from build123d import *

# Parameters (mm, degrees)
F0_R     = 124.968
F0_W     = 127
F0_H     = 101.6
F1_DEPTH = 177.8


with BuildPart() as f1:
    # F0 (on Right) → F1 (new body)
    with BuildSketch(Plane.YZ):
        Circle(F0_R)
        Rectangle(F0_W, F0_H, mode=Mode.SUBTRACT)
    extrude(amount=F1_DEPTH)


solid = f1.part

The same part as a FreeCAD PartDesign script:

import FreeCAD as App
import Part
import Sketcher

V = App.Vector
Q = App.Units.Quantity

doc = App.newDocument("Part")
body = doc.addObject("PartDesign::Body", "Body")

# Sketch on YZ plane
sketch1 = body.newObject("Sketcher::SketchObject", "Sketch")
sketch1.AttachmentSupport = (doc.getObject("YZ_Plane"), [""])
sketch1.MapMode = "FlatFace"
sketch1.addGeometry(Part.Circle(V(0, 0, 0), V(0, 0, 1), 125), False)
sketch1.addGeometry(Part.LineSegment(V(64, -51, 0), V(-64, -51, 0)), False)
sketch1.addGeometry(Part.LineSegment(V(-64, -51, 0), V(-64, 51, 0)), False)
sketch1.addGeometry(Part.LineSegment(V(-64, 51, 0), V(64, 51, 0)), False)
sketch1.addGeometry(Part.LineSegment(V(64, 51, 0), V(64, -51, 0)), False)
sketch1.addConstraint(Sketcher.Constraint("Coincident", 1, 2, 2, 1))
sketch1.addConstraint(Sketcher.Constraint("Coincident", 2, 2, 3, 1))
sketch1.addConstraint(Sketcher.Constraint("Coincident", 3, 2, 4, 1))
sketch1.addConstraint(Sketcher.Constraint("Coincident", 4, 2, 1, 1))
sketch1.addConstraint(Sketcher.Constraint("Horizontal", 1))
sketch1.addConstraint(Sketcher.Constraint("Vertical", 2))
sketch1.addConstraint(Sketcher.Constraint("Horizontal", 3))
sketch1.addConstraint(Sketcher.Constraint("Vertical", 4))
sketch1.addConstraint(Sketcher.Constraint("Coincident", 0, 3, -1, 1))
sketch1.addConstraint(Sketcher.Constraint("Symmetric", 1, 2, 3, 2, -1, 1))
sketch1.addConstraint(Sketcher.Constraint("Diameter", 0, Q("9.84 in")))
sketch1.addConstraint(Sketcher.Constraint("DistanceX", 1, 2, 1, 1, Q("5 in")))
sketch1.addConstraint(Sketcher.Constraint("DistanceY", 2, 1, 2, 2, Q("4 in")))
pad1 = body.newObject("PartDesign::Pad", "Pad")
pad1.Profile = sketch1
pad1.Length = Q("7 in")

doc.recompute()
